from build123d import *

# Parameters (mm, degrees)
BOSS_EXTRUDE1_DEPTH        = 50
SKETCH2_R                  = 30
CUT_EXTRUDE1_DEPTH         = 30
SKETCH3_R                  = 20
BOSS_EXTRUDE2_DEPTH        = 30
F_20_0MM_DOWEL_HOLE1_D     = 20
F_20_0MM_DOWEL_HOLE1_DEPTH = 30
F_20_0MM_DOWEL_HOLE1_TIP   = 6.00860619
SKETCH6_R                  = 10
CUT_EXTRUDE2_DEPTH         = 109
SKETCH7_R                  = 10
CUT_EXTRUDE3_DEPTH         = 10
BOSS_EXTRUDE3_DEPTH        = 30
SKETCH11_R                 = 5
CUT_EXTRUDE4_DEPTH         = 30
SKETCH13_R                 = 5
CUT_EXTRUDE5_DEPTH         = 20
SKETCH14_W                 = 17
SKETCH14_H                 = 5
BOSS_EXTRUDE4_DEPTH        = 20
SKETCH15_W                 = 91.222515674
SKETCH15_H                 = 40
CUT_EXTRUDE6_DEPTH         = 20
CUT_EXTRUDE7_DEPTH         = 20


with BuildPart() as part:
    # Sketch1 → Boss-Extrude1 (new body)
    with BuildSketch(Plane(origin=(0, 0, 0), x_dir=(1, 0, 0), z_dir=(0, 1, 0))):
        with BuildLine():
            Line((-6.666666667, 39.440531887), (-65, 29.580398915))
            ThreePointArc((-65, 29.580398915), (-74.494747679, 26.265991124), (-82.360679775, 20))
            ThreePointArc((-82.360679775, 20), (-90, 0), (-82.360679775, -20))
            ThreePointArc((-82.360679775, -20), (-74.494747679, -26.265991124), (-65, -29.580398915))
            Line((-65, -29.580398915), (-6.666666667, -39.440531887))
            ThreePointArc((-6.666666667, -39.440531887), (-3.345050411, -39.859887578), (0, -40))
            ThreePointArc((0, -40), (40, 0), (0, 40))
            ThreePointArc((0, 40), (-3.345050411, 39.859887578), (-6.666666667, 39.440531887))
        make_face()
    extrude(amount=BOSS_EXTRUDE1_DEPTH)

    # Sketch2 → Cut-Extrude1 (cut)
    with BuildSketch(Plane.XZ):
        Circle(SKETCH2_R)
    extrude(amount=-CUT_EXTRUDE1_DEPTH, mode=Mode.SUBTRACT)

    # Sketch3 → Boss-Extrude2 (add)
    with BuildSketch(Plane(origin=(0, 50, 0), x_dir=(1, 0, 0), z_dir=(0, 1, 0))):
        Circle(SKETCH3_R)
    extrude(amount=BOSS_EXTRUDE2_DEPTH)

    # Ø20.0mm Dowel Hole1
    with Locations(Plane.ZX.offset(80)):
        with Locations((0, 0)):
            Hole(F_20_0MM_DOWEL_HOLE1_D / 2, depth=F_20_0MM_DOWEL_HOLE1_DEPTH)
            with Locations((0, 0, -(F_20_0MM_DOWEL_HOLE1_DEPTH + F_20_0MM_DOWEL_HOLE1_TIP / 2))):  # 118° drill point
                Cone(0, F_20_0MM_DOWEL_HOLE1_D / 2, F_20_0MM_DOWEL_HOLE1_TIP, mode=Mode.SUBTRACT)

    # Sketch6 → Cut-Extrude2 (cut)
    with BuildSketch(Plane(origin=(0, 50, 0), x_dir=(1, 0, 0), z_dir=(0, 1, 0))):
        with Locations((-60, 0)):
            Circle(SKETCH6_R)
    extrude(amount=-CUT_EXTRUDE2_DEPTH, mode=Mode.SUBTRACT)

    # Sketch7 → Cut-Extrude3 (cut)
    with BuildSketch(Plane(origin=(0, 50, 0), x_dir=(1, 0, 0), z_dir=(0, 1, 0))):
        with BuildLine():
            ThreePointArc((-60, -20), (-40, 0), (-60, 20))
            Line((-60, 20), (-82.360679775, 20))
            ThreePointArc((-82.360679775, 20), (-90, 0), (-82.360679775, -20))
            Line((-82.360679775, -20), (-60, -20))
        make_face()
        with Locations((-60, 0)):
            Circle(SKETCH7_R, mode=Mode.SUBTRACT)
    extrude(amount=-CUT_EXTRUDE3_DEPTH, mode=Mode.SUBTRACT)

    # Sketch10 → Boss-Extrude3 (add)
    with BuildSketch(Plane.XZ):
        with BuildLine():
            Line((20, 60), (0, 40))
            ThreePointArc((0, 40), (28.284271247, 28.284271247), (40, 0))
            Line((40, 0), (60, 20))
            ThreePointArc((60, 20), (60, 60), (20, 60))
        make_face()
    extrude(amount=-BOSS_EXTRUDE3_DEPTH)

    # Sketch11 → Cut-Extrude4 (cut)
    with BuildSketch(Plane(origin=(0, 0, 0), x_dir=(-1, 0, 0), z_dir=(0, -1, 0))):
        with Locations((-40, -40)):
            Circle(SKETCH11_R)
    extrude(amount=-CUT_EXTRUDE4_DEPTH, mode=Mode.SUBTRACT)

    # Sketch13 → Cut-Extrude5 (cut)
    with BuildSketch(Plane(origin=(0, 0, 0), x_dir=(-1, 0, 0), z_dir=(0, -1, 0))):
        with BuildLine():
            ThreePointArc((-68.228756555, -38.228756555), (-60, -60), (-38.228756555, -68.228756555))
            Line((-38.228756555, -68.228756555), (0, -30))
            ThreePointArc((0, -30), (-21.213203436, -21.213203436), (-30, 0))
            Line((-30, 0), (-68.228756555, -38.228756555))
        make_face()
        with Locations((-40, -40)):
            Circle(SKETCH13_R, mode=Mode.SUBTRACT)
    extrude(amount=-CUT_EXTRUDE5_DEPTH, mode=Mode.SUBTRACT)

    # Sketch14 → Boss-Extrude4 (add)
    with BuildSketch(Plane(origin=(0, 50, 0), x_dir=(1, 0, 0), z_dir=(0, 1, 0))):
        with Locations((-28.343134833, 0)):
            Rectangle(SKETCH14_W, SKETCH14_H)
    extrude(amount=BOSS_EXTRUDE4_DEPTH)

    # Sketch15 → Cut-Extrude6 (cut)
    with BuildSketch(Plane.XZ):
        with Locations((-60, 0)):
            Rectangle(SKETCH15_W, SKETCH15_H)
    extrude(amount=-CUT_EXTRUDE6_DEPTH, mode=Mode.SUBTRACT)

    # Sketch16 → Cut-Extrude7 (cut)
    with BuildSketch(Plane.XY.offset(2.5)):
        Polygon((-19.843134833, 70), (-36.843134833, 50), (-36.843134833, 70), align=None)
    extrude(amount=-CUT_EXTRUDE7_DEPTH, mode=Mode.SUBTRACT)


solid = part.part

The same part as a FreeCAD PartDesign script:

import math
import FreeCAD as App
import Part
import Sketcher
from FreeCAD import Vector
Q = App.Units.Quantity


def add_polygon(sketch, points):
    """Adds a closed chain of lines whose ends are joined by coincident constraints."""
    first, n = sketch.GeometryCount, len(points)
    for a, b in zip(points, points[1:] + points[:1]):
        sketch.addGeometry(Part.LineSegment(App.Vector(*a, 0), App.Vector(*b, 0)), False)
    for i in range(n):
        sketch.addConstraint(Sketcher.Constraint("Coincident", first + i, 2, first + (i + 1) % n, 1))

doc = App.newDocument("Part")
body = doc.addObject("PartDesign::Body", "Body")

# Sketch on XZ plane
sketch1 = body.newObject("Sketcher::SketchObject", "Sketch")
sketch1.AttachmentSupport = (doc.getObject("XZ_Plane"), [""])
sketch1.MapMode = "FlatFace"
sketch1.addGeometry([
    Part.LineSegment(Vector(-7, -39, 0), Vector(-65, -30, 0)),  # 0
    Part.ArcOfCircle(Part.Circle(Vector(-60, 0, 0), Vector(0, 0, 1), 30), math.radians(-138), math.radians(-100)),  # 1
    Part.ArcOfCircle(Part.Circle(Vector(-60, 0, 0), Vector(0, 0, 1), 30), math.radians(138), math.radians(222)),  # 2
    Part.ArcOfCircle(Part.Circle(Vector(-60, 0, 0), Vector(0, 0, 1), 30), math.radians(100), math.radians(138)),  # 3
    Part.LineSegment(Vector(-65, 30, 0), Vector(-7, 39, 0)),  # 4
    Part.ArcOfCircle(Part.Circle(Vector(0, 0, 0), Vector(0, 0, 1), 40), math.radians(90), math.radians(99.59)),  # 5
    Part.ArcOfCircle(Part.Circle(Vector(0, 0, 0), Vector(0, 0, 1), 40), math.radians(-90), math.radians(90)),  # 6
    Part.ArcOfCircle(Part.Circle(Vector(0, 0, 0), Vector(0, 0, 1), 40), math.radians(-99.59), math.radians(-90)),  # 7
], False)
sketch1.addConstraint([
    Sketcher.Constraint("Tangent", 0, 2, 1, 2),
    Sketcher.Constraint("Tangent", 1, 1, 2, 2),
    Sketcher.Constraint("Tangent", 2, 1, 3, 2),
    Sketcher.Constraint("Tangent", 3, 1, 4, 1),
    Sketcher.Constraint("Tangent", 4, 2, 5, 2),
    Sketcher.Constraint("Tangent", 5, 1, 6, 2),
    Sketcher.Constraint("Tangent", 6, 1, 7, 2),
    Sketcher.Constraint("Tangent", 7, 1, 0, 1),
    Sketcher.Constraint("Coincident", 5, 3, -1, 1),
    Sketcher.Constraint("Coincident", 3, 3, 1, 3),
    Sketcher.Constraint("Equal", 5, 6),
    Sketcher.Constraint("Equal", 6, 7),
    Sketcher.Constraint("Symmetric", 1, 1, 2, 1, -1),
    Sketcher.Constraint("PointOnObject", 5, 1, -2),
    Sketcher.Constraint("PointOnObject", 6, 1, -2),
    Sketcher.Constraint("Radius", 1, 30.0),
    Sketcher.Constraint("Radius", 5, 40.0),
    Sketcher.Constraint("DistanceX", 1, 3, -1, 1, 60.0),
    Sketcher.Constraint("DistanceY", 1, 1, -1, 1, 20.0),
])
pad1 = body.newObject("PartDesign::Pad", "Pad")
pad1.Profile = sketch1
pad1.Length = 50
pad1.Reversed = True

# Sketch on XZ plane
sketch2 = body.newObject("Sketcher::SketchObject", "Sketch001")
sketch2.AttachmentSupport = (doc.getObject("XZ_Plane"), [""])
sketch2.MapMode = "FlatFace"
sketch2.addGeometry(Part.Circle(Vector(0, 0, 0), Vector(0, 0, 1), 30), False)
sketch2.addConstraint([
    Sketcher.Constraint("Coincident", 0, 3, -1, 1),
    Sketcher.Constraint("Diameter", 0, 60.0),
])
pocket1 = body.newObject("PartDesign::Pocket", "Pocket")
pocket1.Profile = sketch2
pocket1.Length = 30

# Sketch on XZ plane
sketch3 = body.newObject("Sketcher::SketchObject", "Sketch002")
sketch3.AttachmentSupport = (doc.getObject("XZ_Plane"), [""])
sketch3.MapMode = "FlatFace"
sketch3.AttachmentOffset = App.Placement(Vector(0, 0, -50), App.Rotation())
sketch3.addGeometry(Part.Circle(Vector(0, 0, 0), Vector(0, 0, 1), 20), False)
sketch3.addConstraint([
    Sketcher.Constraint("Coincident", 0, 3, -1, 1),
    Sketcher.Constraint("Diameter", 0, 40.0),
])
pad2 = body.newObject("PartDesign::Pad", "Pad001")
pad2.Profile = sketch3
pad2.Length = 30
pad2.Reversed = True

# Sketch on XZ plane
sketch4 = body.newObject("Sketcher::SketchObject", "Sketch003")
sketch4.AttachmentSupport = (doc.getObject("XZ_Plane"), [""])
sketch4.MapMode = "FlatFace"
sketch4.AttachmentOffset = App.Placement(Vector(0, 0, -80), App.Rotation())
sketch4.addGeometry(Part.Circle(Vector(0, 0, 0), Vector(0, 0, 1), 10), False)
sketch4.addConstraint([
    Sketcher.Constraint("Coincident", 0, 3, -1, 1),
    Sketcher.Constraint("Diameter", 0, 20.0),
])
doc.recompute()
hole = body.newObject("PartDesign::Hole", "Hole")
hole.Profile = sketch4
hole.ThreadType = "None"
hole.Diameter = 20
hole.DepthType = "Dimension"
hole.Depth = 30
hole.DrillPoint = "Angled"
hole.DrillPointAngle = 118
hole.Reversed = True

# Sketch on XZ plane
sketch5 = body.newObject("Sketcher::SketchObject", "Sketch004")
sketch5.AttachmentSupport = (doc.getObject("XZ_Plane"), [""])
sketch5.MapMode = "FlatFace"
sketch5.AttachmentOffset = App.Placement(Vector(0, 0, -50), App.Rotation())
sketch5.addGeometry(Part.Circle(Vector(-60, 0, 0), Vector(0, 0, 1), 10), False)
sketch5.addConstraint([
    Sketcher.Constraint("PointOnObject", 0, 3, -1),
    Sketcher.Constraint("Diameter", 0, 20.0),
    Sketcher.Constraint("DistanceX", 0, 3, -1, 1, 60.0),
])
pocket2 = body.newObject("PartDesign::Pocket", "Pocket001")
pocket2.Profile = sketch5
pocket2.Length = 109
pocket2.Reversed = True

# Sketch on XZ plane
sketch6 = body.newObject("Sketcher::SketchObject", "Sketch005")
sketch6.AttachmentSupport = (doc.getObject("XZ_Plane"), [""])
sketch6.MapMode = "FlatFace"
sketch6.AttachmentOffset = App.Placement(Vector(0, 0, -50), App.Rotation())
sketch6.addGeometry([
    Part.ArcOfCircle(Part.Circle(Vector(-60, 0, 0), Vector(0, 0, 1), 20), math.radians(-90), math.radians(90)),  # 0
    Part.LineSegment(Vector(-60, -20, 0), Vector(-82, -20, 0)),  # 1
    Part.ArcOfCircle(Part.Circle(Vector(-60, 0, 0), Vector(0, 0, 1), 30), math.radians(138), math.radians(222)),  # 2
    Part.LineSegment(Vector(-82, 20, 0), Vector(-60, 20, 0)),  # 3
    Part.Circle(Vector(-60, 0, 0), Vector(0, 0, 1), 10),  # 4
], False)
sketch6.addConstraint([
    Sketcher.Constraint("Tangent", 0, 1, 1, 1),
    Sketcher.Constraint("Coincident", 1, 2, 2, 2),
    Sketcher.Constraint("Coincident", 2, 1, 3, 1),
    Sketcher.Constraint("Tangent", 3, 2, 0, 2),
    Sketcher.Constraint("Horizontal", 1),
    Sketcher.Constraint("Horizontal", 3),
    Sketcher.Constraint("Coincident", 2, 3, 0, 3),
    Sketcher.Constraint("Coincident", 4, 3, 0, 3),
    Sketcher.Constraint("PointOnObject", 0, 3, -1),
    Sketcher.Constraint("Diameter", 4, 20.0),
    Sketcher.Constraint("Radius", 0, 20.0),
    Sketcher.Constraint("Radius", 2, 30.0),
    Sketcher.Constraint("DistanceX", 0, 3, -1, 1, 60.0),
])
pocket3 = body.newObject("PartDesign::Pocket", "Pocket002")
pocket3.Profile = sketch6
pocket3.Length = 10
pocket3.Reversed = True

# Sketch on XZ plane
sketch7 = body.newObject("Sketcher::SketchObject", "Sketch006")
sketch7.AttachmentSupport = (doc.getObject("XZ_Plane"), [""])
sketch7.MapMode = "FlatFace"
sketch7.addGeometry([
    Part.LineSegment(Vector(20, 60, 0), Vector(0, 40, 0)),
    Part.ArcOfCircle(Part.Circle(Vector(0, 0, 0), Vector(0, 0, 1), 40), math.radians(0), math.radians(90)),
    Part.LineSegment(Vector(40, 0, 0), Vector(60, 20, 0)),
    Part.ArcOfCircle(Part.Circle(Vector(40, 40, 0), Vector(0, 0, 1), 28), math.radians(-45), math.radians(135)),
], False)
sketch7.addConstraint([
    Sketcher.Constraint("Coincident", 0, 2, 1, 2),
    Sketcher.Constraint("Coincident", 1, 1, 2, 1),
    Sketcher.Constraint("Tangent", 2, 2, 3, 1),
    Sketcher.Constraint("Tangent", 3, 2, 0, 1),
    Sketcher.Constraint("Coincident", 1, 3, -1, 1),
    Sketcher.Constraint("PointOnObject", 0, 2, -2),
    Sketcher.Constraint("PointOnObject", 1, 1, -1),
    Sketcher.Constraint("Parallel", 0, 2),
    Sketcher.Constraint("Horizontal", 3, 3, 0, 2),
    Sketcher.Constraint("Vertical", 3, 3, 1, 1),
    Sketcher.Constraint("Radius", 1, 40.0),
])
pad3 = body.newObject("PartDesign::Pad", "Pad002")
pad3.Profile = sketch7
pad3.Length = 30
pad3.Reversed = True

# Sketch on XZ plane
sketch8 = body.newObject("Sketcher::SketchObject", "Sketch007")
sketch8.AttachmentSupport = (doc.getObject("XZ_Plane"), [""])
sketch8.MapMode = "FlatFace"
sketch8.addGeometry(Part.Circle(Vector(40, 40, 0), Vector(0, 0, 1), 5), False)
sketch8.addConstraint([
    Sketcher.Constraint("Diameter", 0, 10.0),
    Sketcher.Constraint("DistanceX", -1, 1, 0, 3, 40.0),
    Sketcher.Constraint("DistanceY", -1, 1, 0, 3, 40.0),
])
pocket4 = body.newObject("PartDesign::Pocket", "Pocket003")
pocket4.Profile = sketch8
pocket4.Length = 30

# Sketch on XZ plane
sketch9 = body.newObject("Sketcher::SketchObject", "Sketch008")
sketch9.AttachmentSupport = (doc.getObject("XZ_Plane"), [""])
sketch9.MapMode = "FlatFace"
sketch9.addGeometry([
    Part.ArcOfCircle(Part.Circle(Vector(40, 40, 0), Vector(0, 0, 1), 28), math.radians(-4), math.radians(94)),  # 0
    Part.LineSegment(Vector(38, 68, 0), Vector(0, 30, 0)),  # 1
    Part.ArcOfCircle(Part.Circle(Vector(0, 0, 0), Vector(0, 0, 1), 30), math.radians(0), math.radians(90)),  # 2
    Part.LineSegment(Vector(30, 0, 0), Vector(68, 38, 0)),  # 3
    Part.Circle(Vector(40, 40, 0), Vector(0, 0, 1), 5),  # 4
], False)
sketch9.addConstraint([
    Sketcher.Constraint("Coincident", 0, 2, 1, 1),
    Sketcher.Constraint("Coincident", 1, 2, 2, 2),
    Sketcher.Constraint("Coincident", 2, 1, 3, 1),
    Sketcher.Constraint("Coincident", 3, 2, 0, 1),
    Sketcher.Constraint("Coincident", 2, 3, -1, 1),
    Sketcher.Constraint("Coincident", 4, 3, 0, 3),
    Sketcher.Constraint("PointOnObject", 1, 2, -2),
    Sketcher.Constraint("PointOnObject", 2, 1, -1),
    Sketcher.Constraint("Parallel", 1, 3),
    Sketcher.Constraint("Equal", 1, 3),
    Sketcher.Constraint("Diameter", 4, 10.0),
    Sketcher.Constraint("Radius", 2, 30.0),
    Sketcher.Constraint("Angle", 1, Q("-135 deg")),
    Sketcher.Constraint("DistanceX", -1, 1, 0, 3, 40.0),
    Sketcher.Constraint("Radius", 0, 28.284271),
])
pocket5 = body.newObject("PartDesign::Pocket", "Pocket004")
pocket5.Profile = sketch9
pocket5.Length = 20

# Sketch on XZ plane
sketch10 = body.newObject("Sketcher::SketchObject", "Sketch009")
sketch10.AttachmentSupport = (doc.getObject("XZ_Plane"), [""])
sketch10.MapMode = "FlatFace"
sketch10.AttachmentOffset = App.Placement(Vector(0, 0, -50), App.Rotation())
add_polygon(sketch10, [(-37, -2), (-37, 2), (-20, 2), (-20, -2)])  # lines 0-3
sketch10.addConstraint([
    Sketcher.Constraint("Vertical", 0),
    Sketcher.Constraint("Horizontal", 1),
    Sketcher.Constraint("Vertical", 2),
    Sketcher.Constraint("Horizontal", 3),
    Sketcher.Constraint("DistanceX", 1, 1, 1, 2, 17.0),
    Sketcher.Constraint("DistanceY", 0, 1, 0, 2, 5.0),
    Sketcher.Constraint("DistanceY", -1, 1, 0, 2, 2.5),
    Sketcher.Constraint("DistanceX", 0, 2, -1, 1, 36.843135),
])
pad4 = body.newObject("PartDesign::Pad", "Pad003")
pad4.Profile = sketch10
pad4.Length = 20
pad4.Reversed = True

# Sketch on XZ plane
sketch11 = body.newObject("Sketcher::SketchObject", "Sketch010")
sketch11.AttachmentSupport = (doc.getObject("XZ_Plane"), [""])
sketch11.MapMode = "FlatFace"
add_polygon(sketch11, [(-106, 20), (-106, -20), (-14, -20), (-14, 20)])  # lines 0-3
sketch11.addConstraint([
    Sketcher.Constraint("Vertical", 0),
    Sketcher.Constraint("Horizontal", 1),
    Sketcher.Constraint("Vertical", 2),
    Sketcher.Constraint("Horizontal", 3),
    Sketcher.Constraint("DistanceY", 0, 2, 0, 1, 40.0),
    Sketcher.Constraint("DistanceY", 0, 2, -1, 1, 20.0),
    Sketcher.Constraint("DistanceX", 1, 1, 1, 2, 91.222516),
    Sketcher.Constraint("DistanceX", 0, 2, -1, 1, 105.611258),
])
pocket6 = body.newObject("PartDesign::Pocket", "Pocket005")
pocket6.Profile = sketch11
pocket6.Length = 20

# Sketch on XY plane
sketch12 = body.newObject("Sketcher::SketchObject", "Sketch011")
sketch12.AttachmentSupport = (doc.getObject("XY_Plane"), [""])
sketch12.MapMode = "FlatFace"
sketch12.AttachmentOffset = App.Placement(Vector(0, 0, 2.5), App.Rotation())
add_polygon(sketch12, [(-37, 50), (-20, 70), (-37, 70)])  # lines 0-2
sketch12.addConstraint([
    Sketcher.Constraint("Horizontal", 1),
    Sketcher.Constraint("Vertical", 2),
    Sketcher.Constraint("DistanceX", 1, 2, 1, 1, 17.0),
    Sketcher.Constraint("DistanceY", 2, 2, 2, 1, 20.0),
    Sketcher.Constraint("DistanceY", -1, 1, 0, 2, 70.0),
    Sketcher.Constraint("DistanceX", 0, 2, -1, 1, 19.843135),
])
pocket7 = body.newObject("PartDesign::Pocket", "Pocket006")
pocket7.Profile = sketch12
pocket7.Length = 20

doc.recompute()
